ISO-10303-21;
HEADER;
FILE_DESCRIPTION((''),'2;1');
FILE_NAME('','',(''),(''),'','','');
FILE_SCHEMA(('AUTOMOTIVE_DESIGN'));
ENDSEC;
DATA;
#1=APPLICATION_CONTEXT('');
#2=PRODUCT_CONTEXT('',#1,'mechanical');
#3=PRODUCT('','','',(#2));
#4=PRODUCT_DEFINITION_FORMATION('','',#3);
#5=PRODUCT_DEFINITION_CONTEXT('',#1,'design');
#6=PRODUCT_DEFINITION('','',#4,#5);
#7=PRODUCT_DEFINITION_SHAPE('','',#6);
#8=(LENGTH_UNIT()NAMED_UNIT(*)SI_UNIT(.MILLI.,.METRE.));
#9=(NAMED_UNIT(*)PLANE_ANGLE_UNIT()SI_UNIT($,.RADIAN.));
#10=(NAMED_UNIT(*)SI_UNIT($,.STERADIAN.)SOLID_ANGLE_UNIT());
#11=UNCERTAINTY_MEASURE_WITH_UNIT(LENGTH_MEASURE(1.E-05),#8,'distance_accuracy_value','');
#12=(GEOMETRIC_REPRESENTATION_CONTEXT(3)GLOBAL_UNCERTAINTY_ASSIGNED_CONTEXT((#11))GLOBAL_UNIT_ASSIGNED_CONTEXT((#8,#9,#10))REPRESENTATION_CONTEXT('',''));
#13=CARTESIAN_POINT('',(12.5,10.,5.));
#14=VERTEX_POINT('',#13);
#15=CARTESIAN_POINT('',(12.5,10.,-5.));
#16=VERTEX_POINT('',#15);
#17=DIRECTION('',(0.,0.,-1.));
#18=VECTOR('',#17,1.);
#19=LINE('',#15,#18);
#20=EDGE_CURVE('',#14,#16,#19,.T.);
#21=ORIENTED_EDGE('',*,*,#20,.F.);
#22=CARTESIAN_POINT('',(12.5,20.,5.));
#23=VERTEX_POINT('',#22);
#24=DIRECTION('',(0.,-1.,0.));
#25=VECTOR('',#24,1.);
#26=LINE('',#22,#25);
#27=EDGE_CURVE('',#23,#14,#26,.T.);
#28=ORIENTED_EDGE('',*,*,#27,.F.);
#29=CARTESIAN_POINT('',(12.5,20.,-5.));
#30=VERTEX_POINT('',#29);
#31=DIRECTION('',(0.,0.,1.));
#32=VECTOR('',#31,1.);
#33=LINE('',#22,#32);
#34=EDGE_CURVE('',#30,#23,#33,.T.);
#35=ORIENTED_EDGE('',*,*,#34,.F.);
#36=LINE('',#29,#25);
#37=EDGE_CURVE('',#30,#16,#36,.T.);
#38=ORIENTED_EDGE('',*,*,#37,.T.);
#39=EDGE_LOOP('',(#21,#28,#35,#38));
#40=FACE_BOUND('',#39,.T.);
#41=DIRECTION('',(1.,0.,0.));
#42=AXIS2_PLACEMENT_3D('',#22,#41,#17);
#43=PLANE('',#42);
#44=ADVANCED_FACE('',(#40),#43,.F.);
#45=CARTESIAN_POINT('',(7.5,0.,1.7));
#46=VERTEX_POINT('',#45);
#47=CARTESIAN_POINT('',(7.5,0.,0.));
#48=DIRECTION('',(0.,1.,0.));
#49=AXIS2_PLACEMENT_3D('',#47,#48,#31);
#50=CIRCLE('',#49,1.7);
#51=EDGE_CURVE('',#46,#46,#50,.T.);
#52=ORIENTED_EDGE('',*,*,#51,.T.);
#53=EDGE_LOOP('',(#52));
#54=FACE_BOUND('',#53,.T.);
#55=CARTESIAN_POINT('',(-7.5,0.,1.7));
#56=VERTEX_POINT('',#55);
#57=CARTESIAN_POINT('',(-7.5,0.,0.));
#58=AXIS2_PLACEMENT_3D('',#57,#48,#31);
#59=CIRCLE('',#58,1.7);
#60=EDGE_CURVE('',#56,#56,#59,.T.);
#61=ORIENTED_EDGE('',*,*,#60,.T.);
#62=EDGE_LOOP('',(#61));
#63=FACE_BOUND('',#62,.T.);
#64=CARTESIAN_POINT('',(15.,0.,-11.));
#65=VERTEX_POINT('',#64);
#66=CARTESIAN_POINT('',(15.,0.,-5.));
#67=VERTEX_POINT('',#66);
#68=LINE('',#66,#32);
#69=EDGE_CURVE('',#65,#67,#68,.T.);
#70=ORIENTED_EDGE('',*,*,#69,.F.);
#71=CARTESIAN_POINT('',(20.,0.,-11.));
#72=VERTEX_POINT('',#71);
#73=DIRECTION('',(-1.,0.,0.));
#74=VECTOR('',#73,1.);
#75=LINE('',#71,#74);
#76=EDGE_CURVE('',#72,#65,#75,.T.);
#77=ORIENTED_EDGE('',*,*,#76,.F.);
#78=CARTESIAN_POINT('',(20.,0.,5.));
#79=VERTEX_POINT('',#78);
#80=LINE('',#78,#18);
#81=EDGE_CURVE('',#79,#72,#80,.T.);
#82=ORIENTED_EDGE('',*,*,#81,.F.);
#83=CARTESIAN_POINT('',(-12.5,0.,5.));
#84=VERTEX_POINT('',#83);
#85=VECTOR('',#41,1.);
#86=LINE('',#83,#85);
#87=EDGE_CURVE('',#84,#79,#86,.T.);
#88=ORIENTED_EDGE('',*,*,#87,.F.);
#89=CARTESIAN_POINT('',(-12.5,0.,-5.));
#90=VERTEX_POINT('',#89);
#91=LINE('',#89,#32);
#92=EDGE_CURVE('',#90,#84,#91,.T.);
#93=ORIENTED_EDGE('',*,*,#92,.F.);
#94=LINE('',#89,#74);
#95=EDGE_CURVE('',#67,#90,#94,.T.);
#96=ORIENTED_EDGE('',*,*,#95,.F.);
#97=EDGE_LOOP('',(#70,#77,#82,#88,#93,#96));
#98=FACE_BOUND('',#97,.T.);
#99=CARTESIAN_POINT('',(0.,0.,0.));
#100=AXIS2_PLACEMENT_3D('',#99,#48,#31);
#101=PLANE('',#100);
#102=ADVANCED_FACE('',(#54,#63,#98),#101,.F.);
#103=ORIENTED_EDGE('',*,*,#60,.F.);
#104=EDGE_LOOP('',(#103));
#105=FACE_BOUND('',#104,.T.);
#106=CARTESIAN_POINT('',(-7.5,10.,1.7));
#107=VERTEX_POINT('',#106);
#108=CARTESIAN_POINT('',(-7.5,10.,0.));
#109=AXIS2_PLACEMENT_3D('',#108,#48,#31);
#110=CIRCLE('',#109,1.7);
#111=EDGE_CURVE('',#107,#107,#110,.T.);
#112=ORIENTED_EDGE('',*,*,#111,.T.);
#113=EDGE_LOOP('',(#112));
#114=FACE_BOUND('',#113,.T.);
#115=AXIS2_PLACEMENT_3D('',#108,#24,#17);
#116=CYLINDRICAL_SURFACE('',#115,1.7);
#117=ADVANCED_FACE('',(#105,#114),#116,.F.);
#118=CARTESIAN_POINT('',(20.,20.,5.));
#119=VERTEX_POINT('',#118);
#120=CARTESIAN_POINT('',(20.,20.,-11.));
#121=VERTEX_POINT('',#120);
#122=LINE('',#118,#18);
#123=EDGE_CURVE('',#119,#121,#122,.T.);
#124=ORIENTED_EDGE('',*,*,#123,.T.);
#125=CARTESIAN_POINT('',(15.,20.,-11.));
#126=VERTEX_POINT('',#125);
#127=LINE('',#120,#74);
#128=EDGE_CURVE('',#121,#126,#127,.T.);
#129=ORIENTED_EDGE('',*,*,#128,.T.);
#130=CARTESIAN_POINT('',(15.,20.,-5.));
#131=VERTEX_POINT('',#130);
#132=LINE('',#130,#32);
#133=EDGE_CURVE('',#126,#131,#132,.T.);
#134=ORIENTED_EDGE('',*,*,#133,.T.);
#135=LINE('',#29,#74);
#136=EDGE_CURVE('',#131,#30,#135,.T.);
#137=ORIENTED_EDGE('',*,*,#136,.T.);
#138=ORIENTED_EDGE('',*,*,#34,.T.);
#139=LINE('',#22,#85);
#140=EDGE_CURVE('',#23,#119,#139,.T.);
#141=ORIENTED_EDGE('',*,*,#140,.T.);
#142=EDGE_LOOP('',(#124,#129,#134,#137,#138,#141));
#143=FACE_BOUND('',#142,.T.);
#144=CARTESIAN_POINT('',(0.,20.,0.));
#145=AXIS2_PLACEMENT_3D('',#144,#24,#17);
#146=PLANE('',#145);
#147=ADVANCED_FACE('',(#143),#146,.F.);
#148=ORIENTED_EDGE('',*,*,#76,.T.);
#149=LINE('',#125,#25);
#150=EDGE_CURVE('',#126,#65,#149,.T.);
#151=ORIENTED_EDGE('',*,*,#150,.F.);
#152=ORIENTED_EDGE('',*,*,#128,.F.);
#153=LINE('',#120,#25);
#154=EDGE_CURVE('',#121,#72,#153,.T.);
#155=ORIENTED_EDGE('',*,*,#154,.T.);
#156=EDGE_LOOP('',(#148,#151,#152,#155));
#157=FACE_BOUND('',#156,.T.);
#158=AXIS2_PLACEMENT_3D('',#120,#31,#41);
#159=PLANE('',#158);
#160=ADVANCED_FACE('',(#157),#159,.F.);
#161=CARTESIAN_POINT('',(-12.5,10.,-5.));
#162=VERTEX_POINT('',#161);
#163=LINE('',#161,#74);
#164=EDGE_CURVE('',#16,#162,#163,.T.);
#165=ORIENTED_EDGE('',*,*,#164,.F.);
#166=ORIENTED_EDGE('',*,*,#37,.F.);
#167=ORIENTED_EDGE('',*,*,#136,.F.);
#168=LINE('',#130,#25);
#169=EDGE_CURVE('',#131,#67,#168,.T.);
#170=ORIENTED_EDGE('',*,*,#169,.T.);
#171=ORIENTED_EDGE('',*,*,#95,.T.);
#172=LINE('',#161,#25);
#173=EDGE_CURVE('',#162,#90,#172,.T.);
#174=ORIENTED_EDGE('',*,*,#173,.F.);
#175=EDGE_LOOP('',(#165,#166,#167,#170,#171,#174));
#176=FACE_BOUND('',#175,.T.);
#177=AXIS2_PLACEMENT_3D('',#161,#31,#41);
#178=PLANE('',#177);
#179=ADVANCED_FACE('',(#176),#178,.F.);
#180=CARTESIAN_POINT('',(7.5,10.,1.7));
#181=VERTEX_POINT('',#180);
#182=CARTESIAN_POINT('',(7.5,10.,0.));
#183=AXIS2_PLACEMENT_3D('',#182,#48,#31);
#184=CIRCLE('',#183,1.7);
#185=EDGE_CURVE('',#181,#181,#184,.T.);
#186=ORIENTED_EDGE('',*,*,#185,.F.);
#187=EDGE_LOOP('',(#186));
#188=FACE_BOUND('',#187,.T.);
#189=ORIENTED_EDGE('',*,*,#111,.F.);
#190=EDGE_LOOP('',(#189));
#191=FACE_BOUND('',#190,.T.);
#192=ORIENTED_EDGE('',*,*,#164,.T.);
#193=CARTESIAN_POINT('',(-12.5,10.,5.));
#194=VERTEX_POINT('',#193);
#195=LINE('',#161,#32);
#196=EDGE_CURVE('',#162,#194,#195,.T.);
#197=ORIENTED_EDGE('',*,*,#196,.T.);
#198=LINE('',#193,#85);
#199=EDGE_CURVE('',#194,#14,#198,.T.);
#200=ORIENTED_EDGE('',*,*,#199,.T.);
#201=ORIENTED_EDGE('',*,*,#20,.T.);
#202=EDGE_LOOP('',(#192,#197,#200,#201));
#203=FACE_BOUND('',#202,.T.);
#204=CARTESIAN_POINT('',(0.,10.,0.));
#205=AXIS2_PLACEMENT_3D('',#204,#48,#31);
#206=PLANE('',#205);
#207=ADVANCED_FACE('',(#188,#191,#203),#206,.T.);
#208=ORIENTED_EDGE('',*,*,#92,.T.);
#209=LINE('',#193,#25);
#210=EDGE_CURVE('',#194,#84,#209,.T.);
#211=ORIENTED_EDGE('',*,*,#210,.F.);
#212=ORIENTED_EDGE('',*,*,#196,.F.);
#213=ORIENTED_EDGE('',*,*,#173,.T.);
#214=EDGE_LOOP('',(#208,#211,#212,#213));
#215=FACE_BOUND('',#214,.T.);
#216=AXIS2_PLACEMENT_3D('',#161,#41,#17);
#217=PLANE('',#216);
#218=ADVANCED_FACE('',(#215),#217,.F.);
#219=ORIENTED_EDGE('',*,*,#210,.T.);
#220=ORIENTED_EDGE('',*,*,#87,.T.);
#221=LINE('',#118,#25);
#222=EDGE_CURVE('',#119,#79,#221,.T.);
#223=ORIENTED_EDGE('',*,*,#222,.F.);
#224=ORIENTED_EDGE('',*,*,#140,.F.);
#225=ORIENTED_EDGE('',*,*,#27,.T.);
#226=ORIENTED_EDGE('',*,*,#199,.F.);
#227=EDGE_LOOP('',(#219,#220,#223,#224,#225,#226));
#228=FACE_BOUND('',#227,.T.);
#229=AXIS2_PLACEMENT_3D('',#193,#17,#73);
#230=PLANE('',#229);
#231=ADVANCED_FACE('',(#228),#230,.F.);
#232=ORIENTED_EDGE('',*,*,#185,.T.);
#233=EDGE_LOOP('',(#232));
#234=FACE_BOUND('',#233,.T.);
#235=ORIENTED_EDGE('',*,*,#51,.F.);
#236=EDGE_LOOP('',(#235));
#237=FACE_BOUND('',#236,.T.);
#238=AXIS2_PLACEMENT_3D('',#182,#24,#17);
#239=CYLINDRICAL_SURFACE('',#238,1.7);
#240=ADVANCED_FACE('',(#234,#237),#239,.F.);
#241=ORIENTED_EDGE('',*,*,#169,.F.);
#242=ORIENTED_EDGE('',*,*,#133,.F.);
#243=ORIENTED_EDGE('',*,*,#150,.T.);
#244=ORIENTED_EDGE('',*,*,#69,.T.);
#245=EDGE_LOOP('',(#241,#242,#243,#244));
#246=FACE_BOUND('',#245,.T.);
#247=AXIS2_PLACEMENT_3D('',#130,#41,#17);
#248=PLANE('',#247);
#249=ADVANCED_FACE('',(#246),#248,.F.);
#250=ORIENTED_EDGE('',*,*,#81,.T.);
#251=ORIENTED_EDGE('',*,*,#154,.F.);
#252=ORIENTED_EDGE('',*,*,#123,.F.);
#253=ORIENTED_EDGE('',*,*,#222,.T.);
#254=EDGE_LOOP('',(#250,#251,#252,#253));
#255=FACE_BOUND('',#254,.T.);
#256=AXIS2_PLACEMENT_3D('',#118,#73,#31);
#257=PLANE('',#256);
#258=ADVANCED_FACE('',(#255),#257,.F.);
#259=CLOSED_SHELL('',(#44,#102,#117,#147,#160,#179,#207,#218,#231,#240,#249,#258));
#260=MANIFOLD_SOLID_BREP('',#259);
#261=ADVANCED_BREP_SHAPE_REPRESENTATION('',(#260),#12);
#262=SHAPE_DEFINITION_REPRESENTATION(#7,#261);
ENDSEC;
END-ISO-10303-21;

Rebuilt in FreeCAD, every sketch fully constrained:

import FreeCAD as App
import Part
import Sketcher
from FreeCAD import Vector


def add_polygon(sketch, points):
    """Adds a closed chain of lines whose ends are joined by coincident constraints."""
    first, n = sketch.GeometryCount, len(points)
    for a, b in zip(points, points[1:] + points[:1]):
        sketch.addGeometry(Part.LineSegment(App.Vector(*a, 0), App.Vector(*b, 0)), False)
    for i in range(n):
        sketch.addConstraint(Sketcher.Constraint("Coincident", first + i, 2, first + (i + 1) % n, 1))

doc = App.newDocument("Part")
body = doc.addObject("PartDesign::Body", "Body")

# Sketch on XZ plane
sketch1 = body.newObject("Sketcher::SketchObject", "Sketch")
sketch1.AttachmentSupport = (doc.getObject("XZ_Plane"), [""])
sketch1.MapMode = "FlatFace"
add_polygon(sketch1, [(-12.5, -5), (-12.5, 5), (12.5, 5), (12.5, -5)])  # lines 0-3
sketch1.addGeometry(Part.Circle(Vector(-7.5, 0, 0), Vector(0, 0, 1), 1.7), False)  # 4
sketch1.addGeometry(Part.Circle(Vector(7.5, 0, 0), Vector(0, 0, 1), 1.7), False)  # 5
sketch1.addConstraint(Sketcher.Constraint("Vertical", 0))
sketch1.addConstraint(Sketcher.Constraint("Horizontal", 1))
sketch1.addConstraint(Sketcher.Constraint("Vertical", 2))
sketch1.addConstraint(Sketcher.Constraint("Horizontal", 3))
sketch1.addConstraint(Sketcher.Constraint("Equal", 4, 5))
sketch1.addConstraint(Sketcher.Constraint("Symmetric", 4, 3, 5, 3, -1, 1))
sketch1.addConstraint(Sketcher.Constraint("Symmetric", 0, 2, 2, 2, -1, 1))
sketch1.addConstraint(Sketcher.Constraint("PointOnObject", 4, 3, -1))
sketch1.addConstraint(Sketcher.Constraint("Diameter", 4, 3.4))
sketch1.addConstraint(Sketcher.Constraint("DistanceX", 1, 1, 1, 2, 25.0))
sketch1.addConstraint(Sketcher.Constraint("DistanceY", 0, 1, 0, 2, 10.0))
sketch1.addConstraint(Sketcher.Constraint("DistanceX", 4, 3, 5, 3, 15.0))
pad1 = body.newObject("PartDesign::Pad", "Pad")
pad1.Profile = sketch1
pad1.Length = 10
pad1.Reversed = True

# Sketch on XZ plane
sketch2 = body.newObject("Sketcher::SketchObject", "Sketch001")
sketch2.AttachmentSupport = (doc.getObject("XZ_Plane"), [""])
sketch2.MapMode = "FlatFace"
add_polygon(sketch2, [(12.5, 5), (20, 5), (20, -11), (15, -11), (15, -5), (12.5, -5)])  # lines 0-5
sketch2.addConstraint(Sketcher.Constraint("Horizontal", 0))
sketch2.addConstraint(Sketcher.Constraint("Vertical", 1))
sketch2.addConstraint(Sketcher.Constraint("Horizontal", 2))
sketch2.addConstraint(Sketcher.Constraint("Vertical", 3))
sketch2.addConstraint(Sketcher.Constraint("Horizontal", 4))
sketch2.addConstraint(Sketcher.Constraint("Vertical", 5))
sketch2.addConstraint(Sketcher.Constraint("DistanceX", 2, 2, 2, 1, 5.0))
sketch2.addConstraint(Sketcher.Constraint("DistanceY", 1, 2, 1, 1, 16.0))
sketch2.addConstraint(Sketcher.Constraint("DistanceY", 3, 1, 3, 2, 6.0))
sketch2.addConstraint(Sketcher.Constraint("DistanceX", 0, 1, 0, 2, 7.5))
sketch2.addConstraint(Sketcher.Constraint("DistanceX", -1, 1, 0, 2, 20.0))
sketch2.addConstraint(Sketcher.Constraint("DistanceY", -1, 1, 0, 2, 5.0))
pad2 = body.newObject("PartDesign::Pad", "Pad001")
pad2.Profile = sketch2
pad2.Length = 20
pad2.Reversed = True

doc.recompute()
